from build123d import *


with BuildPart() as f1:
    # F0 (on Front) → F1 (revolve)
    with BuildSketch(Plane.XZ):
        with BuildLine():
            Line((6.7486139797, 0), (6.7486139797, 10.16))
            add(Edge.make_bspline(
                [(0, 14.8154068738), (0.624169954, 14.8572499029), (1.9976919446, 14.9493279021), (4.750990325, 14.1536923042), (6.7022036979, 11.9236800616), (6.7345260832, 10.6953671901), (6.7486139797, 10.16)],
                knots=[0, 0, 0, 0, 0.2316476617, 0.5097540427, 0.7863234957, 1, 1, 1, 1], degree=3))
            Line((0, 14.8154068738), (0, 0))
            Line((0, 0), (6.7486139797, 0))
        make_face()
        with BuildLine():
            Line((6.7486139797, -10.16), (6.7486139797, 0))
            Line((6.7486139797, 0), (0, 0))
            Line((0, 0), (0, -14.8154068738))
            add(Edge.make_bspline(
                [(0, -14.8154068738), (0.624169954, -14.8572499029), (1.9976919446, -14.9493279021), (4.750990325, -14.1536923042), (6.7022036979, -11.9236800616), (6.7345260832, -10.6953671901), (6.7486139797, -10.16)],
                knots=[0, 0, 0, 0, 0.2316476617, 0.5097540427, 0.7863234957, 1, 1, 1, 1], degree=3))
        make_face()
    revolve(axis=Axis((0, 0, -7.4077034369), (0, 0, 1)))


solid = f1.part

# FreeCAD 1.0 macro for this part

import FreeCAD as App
import Part
import Sketcher

doc = App.newDocument("Part")
body = doc.addObject("PartDesign::Body", "Body")

sketch1 = body.newObject("Sketcher::SketchObject", "Sketch")
sketch1.AttachmentSupport = (doc.getObject("XZ_Plane"), [""])
sketch1.MapMode = "FlatFace"
sketch1.addGeometry(Part.BSplineCurve([App.Vector(0, 14.815407, 0), App.Vector(0.62417, 14.85725, 0), App.Vector(1.997692, 14.949328, 0), App.Vector(4.75099, 14.153692, 0), App.Vector(6.702204, 11.92368, 0), App.Vector(6.734526, 10.695367, 0), App.Vector(6.748614, 10.16, 0)], [4, 1, 1, 1, 4], [0, 0.231647662, 0.509754043, 0.786323496, 1], False, 3, [1, 1, 1, 1, 1, 1, 1], False), False)
sketch1.addGeometry(Part.LineSegment(App.Vector(0, 14.815407, 0), App.Vector(0, -14.815407, 0)), False)
sketch1.addGeometry(Part.BSplineCurve([App.Vector(0, -14.815407, 0), App.Vector(0.62417, -14.85725, 0), App.Vector(1.997692, -14.949328, 0), App.Vector(4.75099, -14.153692, 0), App.Vector(6.702204, -11.92368, 0), App.Vector(6.734526, -10.695367, 0), App.Vector(6.748614, -10.16, 0)], [4, 1, 1, 1, 4], [0, 0.231647662, 0.509754043, 0.786323496, 1], False, 3, [1, 1, 1, 1, 1, 1, 1], False), False)
sketch1.addGeometry(Part.LineSegment(App.Vector(6.748614, -10.16, 0), App.Vector(6.748614, 10.16, 0)), False)
sketch1.addConstraint(Sketcher.Constraint("Block", 0))
sketch1.addConstraint(Sketcher.Constraint("Block", 2))
sketch1.addConstraint(Sketcher.Constraint("Coincident", 0, 1, 1, 1))
sketch1.addConstraint(Sketcher.Constraint("Coincident", 1, 2, 2, 1))
sketch1.addConstraint(Sketcher.Constraint("Coincident", 2, 2, 3, 1))
sketch1.addConstraint(Sketcher.Constraint("Coincident", 3, 2, 0, 2))
revolution = body.newObject("PartDesign::Revolution", "Revolution")
revolution.Profile = sketch1
revolution.ReferenceAxis = (sketch1, ["V_Axis"])
revolution.Angle = 360

doc.recompute()
